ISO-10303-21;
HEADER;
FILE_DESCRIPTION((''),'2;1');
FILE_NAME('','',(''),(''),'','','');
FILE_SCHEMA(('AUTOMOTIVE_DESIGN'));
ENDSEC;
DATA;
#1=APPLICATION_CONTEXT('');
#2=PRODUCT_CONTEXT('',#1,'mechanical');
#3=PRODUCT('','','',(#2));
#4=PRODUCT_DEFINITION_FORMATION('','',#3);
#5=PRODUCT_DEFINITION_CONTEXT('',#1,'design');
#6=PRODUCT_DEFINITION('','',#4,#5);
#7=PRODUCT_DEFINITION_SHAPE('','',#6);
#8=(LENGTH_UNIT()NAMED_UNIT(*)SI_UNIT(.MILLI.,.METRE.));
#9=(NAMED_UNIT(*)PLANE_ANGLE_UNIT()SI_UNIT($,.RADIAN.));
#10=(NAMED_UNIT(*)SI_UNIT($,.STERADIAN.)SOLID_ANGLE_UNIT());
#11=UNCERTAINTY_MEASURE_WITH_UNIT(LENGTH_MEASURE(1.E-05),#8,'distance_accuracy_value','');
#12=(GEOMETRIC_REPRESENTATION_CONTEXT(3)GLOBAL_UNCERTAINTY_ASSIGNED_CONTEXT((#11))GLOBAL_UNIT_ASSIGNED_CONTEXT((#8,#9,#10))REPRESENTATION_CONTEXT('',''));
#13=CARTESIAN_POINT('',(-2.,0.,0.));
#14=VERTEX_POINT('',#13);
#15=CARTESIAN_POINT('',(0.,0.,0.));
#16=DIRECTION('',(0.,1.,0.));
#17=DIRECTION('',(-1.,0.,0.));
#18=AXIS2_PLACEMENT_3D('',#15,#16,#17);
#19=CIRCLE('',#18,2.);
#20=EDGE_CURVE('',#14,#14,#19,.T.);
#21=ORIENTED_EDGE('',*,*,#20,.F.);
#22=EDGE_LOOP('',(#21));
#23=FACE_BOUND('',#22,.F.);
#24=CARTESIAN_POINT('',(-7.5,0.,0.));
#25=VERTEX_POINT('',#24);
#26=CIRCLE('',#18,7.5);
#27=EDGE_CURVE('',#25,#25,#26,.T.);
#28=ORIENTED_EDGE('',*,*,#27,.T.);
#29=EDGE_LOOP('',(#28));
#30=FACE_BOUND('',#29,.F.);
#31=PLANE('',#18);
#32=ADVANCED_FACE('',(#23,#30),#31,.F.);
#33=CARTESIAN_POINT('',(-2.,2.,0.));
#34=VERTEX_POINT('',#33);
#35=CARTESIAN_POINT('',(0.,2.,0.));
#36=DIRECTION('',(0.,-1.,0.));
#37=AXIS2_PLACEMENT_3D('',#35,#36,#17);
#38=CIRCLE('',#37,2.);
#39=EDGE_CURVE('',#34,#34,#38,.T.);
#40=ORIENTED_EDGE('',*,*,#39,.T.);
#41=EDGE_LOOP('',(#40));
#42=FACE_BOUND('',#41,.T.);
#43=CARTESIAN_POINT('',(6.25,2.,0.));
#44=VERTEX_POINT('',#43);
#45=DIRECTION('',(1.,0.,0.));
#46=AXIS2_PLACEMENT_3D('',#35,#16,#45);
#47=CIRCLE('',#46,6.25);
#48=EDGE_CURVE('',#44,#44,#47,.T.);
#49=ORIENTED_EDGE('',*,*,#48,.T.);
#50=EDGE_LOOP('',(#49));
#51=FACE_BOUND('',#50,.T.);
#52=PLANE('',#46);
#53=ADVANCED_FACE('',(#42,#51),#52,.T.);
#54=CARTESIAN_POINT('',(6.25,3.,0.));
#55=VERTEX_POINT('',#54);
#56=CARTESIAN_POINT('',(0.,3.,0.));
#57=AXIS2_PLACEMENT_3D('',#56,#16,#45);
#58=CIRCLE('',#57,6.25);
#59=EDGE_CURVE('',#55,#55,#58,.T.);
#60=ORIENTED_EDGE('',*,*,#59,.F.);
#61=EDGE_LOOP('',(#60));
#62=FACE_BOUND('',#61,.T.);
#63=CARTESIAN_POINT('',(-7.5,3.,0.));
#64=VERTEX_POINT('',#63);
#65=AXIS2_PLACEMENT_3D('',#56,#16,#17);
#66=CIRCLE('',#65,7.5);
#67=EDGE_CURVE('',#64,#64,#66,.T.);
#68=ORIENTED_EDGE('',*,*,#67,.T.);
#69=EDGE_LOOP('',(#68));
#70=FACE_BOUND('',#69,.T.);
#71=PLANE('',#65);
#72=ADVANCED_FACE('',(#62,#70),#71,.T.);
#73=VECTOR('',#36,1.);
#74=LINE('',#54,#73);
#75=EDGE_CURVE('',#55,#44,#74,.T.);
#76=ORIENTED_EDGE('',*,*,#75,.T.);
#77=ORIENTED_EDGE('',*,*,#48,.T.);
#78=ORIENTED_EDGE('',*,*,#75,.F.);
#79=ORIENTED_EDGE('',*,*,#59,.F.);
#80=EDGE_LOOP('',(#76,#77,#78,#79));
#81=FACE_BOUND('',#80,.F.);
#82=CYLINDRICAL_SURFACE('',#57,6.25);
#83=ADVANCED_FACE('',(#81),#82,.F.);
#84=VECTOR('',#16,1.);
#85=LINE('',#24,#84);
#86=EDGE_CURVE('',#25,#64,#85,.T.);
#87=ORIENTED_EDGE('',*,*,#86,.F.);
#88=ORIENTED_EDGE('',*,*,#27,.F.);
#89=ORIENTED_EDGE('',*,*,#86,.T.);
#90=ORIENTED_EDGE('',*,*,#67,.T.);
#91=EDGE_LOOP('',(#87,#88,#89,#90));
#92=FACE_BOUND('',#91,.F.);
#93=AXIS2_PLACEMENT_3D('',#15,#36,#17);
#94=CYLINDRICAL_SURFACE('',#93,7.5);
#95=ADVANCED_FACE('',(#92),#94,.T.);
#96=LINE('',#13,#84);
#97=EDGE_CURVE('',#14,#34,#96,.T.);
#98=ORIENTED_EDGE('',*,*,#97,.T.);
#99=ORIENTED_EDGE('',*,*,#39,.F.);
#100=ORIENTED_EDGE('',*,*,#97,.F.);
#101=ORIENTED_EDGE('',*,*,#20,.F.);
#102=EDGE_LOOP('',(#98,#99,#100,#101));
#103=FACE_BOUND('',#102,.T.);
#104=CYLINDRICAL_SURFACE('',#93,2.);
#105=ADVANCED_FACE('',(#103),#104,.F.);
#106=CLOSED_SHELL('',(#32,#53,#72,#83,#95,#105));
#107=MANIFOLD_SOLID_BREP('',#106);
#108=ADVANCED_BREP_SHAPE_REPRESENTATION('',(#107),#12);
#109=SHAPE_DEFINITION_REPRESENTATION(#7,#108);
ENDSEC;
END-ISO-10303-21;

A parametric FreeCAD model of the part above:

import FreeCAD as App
import Part
import Sketcher
from FreeCAD import Vector
Q = App.Units.Quantity

doc = App.newDocument("Part")
params = doc.addObject("Spreadsheet::Sheet", "Params")
for row, (alias, value) in enumerate([
    ("sketch1_diameter", "15 mm"),
    ("sketch1_diameter2", "4 mm"),
    ("pad1_length", "3 mm"),
    ("sketch2_diameter", "12.5 mm"),
    ("pocket1_length", "1 mm"),
], start=1):
    params.set(f"A{row}", alias)
    params.set(f"B{row}", "=" + value)
    params.setAlias(f"B{row}", alias)

body = doc.addObject("PartDesign::Body", "Body")

# Sketch on XZ plane
sketch1 = doc.addObject("Sketcher::SketchObject", "Sketch")
body.addObject(sketch1)
sketch1.AttachmentSupport = (doc.XZ_Plane, [""])
sketch1.MapMode = "FlatFace"
sketch1.addGeometry([
    Part.Circle(Vector(0, 0, 0), Vector(0, 0, 1), 7.5),
    Part.Circle(Vector(0, 0, 0), Vector(0, 0, 1), 2),
], False)
sketch1.addConstraint([
    Sketcher.Constraint("Coincident", 0, 3, -1, 1),
    Sketcher.Constraint("Coincident", 1, 3, -1, 1),
    Sketcher.Constraint("Diameter", 0, Q("15 mm")),
    Sketcher.Constraint("Diameter", 1, Q("4 mm")),
])
sketch1.setExpression("Constraints[2]", "Params.sketch1_diameter")
sketch1.setExpression("Constraints[3]", "Params.sketch1_diameter2")
pad1 = doc.addObject("PartDesign::Pad", "Pad")
body.addObject(pad1)
pad1.Profile = sketch1
pad1.setExpression("Length", "Params.pad1_length")
pad1.Reversed = True

# Sketch on XZ plane
sketch2 = doc.addObject("Sketcher::SketchObject", "Sketch001")
body.addObject(sketch2)
sketch2.AttachmentSupport = (doc.XZ_Plane, [""])
sketch2.MapMode = "FlatFace"
sketch2.AttachmentOffset = App.Placement(Vector(0, 0, -3), App.Rotation())
sketch2.addGeometry(Part.Circle(Vector(0, 0, 0), Vector(0, 0, 1), 6.25), False)
sketch2.addConstraint([
    Sketcher.Constraint("Coincident", 0, 3, -1, 1),
    Sketcher.Constraint("Diameter", 0, Q("12.5 mm")),
])
sketch2.setExpression("Constraints[1]", "Params.sketch2_diameter")
pocket1 = doc.addObject("PartDesign::Pocket", "Pocket")
body.addObject(pocket1)
pocket1.Profile = sketch2
pocket1.setExpression("Length", "Params.pocket1_length")
pocket1.Reversed = True

doc.recompute()
